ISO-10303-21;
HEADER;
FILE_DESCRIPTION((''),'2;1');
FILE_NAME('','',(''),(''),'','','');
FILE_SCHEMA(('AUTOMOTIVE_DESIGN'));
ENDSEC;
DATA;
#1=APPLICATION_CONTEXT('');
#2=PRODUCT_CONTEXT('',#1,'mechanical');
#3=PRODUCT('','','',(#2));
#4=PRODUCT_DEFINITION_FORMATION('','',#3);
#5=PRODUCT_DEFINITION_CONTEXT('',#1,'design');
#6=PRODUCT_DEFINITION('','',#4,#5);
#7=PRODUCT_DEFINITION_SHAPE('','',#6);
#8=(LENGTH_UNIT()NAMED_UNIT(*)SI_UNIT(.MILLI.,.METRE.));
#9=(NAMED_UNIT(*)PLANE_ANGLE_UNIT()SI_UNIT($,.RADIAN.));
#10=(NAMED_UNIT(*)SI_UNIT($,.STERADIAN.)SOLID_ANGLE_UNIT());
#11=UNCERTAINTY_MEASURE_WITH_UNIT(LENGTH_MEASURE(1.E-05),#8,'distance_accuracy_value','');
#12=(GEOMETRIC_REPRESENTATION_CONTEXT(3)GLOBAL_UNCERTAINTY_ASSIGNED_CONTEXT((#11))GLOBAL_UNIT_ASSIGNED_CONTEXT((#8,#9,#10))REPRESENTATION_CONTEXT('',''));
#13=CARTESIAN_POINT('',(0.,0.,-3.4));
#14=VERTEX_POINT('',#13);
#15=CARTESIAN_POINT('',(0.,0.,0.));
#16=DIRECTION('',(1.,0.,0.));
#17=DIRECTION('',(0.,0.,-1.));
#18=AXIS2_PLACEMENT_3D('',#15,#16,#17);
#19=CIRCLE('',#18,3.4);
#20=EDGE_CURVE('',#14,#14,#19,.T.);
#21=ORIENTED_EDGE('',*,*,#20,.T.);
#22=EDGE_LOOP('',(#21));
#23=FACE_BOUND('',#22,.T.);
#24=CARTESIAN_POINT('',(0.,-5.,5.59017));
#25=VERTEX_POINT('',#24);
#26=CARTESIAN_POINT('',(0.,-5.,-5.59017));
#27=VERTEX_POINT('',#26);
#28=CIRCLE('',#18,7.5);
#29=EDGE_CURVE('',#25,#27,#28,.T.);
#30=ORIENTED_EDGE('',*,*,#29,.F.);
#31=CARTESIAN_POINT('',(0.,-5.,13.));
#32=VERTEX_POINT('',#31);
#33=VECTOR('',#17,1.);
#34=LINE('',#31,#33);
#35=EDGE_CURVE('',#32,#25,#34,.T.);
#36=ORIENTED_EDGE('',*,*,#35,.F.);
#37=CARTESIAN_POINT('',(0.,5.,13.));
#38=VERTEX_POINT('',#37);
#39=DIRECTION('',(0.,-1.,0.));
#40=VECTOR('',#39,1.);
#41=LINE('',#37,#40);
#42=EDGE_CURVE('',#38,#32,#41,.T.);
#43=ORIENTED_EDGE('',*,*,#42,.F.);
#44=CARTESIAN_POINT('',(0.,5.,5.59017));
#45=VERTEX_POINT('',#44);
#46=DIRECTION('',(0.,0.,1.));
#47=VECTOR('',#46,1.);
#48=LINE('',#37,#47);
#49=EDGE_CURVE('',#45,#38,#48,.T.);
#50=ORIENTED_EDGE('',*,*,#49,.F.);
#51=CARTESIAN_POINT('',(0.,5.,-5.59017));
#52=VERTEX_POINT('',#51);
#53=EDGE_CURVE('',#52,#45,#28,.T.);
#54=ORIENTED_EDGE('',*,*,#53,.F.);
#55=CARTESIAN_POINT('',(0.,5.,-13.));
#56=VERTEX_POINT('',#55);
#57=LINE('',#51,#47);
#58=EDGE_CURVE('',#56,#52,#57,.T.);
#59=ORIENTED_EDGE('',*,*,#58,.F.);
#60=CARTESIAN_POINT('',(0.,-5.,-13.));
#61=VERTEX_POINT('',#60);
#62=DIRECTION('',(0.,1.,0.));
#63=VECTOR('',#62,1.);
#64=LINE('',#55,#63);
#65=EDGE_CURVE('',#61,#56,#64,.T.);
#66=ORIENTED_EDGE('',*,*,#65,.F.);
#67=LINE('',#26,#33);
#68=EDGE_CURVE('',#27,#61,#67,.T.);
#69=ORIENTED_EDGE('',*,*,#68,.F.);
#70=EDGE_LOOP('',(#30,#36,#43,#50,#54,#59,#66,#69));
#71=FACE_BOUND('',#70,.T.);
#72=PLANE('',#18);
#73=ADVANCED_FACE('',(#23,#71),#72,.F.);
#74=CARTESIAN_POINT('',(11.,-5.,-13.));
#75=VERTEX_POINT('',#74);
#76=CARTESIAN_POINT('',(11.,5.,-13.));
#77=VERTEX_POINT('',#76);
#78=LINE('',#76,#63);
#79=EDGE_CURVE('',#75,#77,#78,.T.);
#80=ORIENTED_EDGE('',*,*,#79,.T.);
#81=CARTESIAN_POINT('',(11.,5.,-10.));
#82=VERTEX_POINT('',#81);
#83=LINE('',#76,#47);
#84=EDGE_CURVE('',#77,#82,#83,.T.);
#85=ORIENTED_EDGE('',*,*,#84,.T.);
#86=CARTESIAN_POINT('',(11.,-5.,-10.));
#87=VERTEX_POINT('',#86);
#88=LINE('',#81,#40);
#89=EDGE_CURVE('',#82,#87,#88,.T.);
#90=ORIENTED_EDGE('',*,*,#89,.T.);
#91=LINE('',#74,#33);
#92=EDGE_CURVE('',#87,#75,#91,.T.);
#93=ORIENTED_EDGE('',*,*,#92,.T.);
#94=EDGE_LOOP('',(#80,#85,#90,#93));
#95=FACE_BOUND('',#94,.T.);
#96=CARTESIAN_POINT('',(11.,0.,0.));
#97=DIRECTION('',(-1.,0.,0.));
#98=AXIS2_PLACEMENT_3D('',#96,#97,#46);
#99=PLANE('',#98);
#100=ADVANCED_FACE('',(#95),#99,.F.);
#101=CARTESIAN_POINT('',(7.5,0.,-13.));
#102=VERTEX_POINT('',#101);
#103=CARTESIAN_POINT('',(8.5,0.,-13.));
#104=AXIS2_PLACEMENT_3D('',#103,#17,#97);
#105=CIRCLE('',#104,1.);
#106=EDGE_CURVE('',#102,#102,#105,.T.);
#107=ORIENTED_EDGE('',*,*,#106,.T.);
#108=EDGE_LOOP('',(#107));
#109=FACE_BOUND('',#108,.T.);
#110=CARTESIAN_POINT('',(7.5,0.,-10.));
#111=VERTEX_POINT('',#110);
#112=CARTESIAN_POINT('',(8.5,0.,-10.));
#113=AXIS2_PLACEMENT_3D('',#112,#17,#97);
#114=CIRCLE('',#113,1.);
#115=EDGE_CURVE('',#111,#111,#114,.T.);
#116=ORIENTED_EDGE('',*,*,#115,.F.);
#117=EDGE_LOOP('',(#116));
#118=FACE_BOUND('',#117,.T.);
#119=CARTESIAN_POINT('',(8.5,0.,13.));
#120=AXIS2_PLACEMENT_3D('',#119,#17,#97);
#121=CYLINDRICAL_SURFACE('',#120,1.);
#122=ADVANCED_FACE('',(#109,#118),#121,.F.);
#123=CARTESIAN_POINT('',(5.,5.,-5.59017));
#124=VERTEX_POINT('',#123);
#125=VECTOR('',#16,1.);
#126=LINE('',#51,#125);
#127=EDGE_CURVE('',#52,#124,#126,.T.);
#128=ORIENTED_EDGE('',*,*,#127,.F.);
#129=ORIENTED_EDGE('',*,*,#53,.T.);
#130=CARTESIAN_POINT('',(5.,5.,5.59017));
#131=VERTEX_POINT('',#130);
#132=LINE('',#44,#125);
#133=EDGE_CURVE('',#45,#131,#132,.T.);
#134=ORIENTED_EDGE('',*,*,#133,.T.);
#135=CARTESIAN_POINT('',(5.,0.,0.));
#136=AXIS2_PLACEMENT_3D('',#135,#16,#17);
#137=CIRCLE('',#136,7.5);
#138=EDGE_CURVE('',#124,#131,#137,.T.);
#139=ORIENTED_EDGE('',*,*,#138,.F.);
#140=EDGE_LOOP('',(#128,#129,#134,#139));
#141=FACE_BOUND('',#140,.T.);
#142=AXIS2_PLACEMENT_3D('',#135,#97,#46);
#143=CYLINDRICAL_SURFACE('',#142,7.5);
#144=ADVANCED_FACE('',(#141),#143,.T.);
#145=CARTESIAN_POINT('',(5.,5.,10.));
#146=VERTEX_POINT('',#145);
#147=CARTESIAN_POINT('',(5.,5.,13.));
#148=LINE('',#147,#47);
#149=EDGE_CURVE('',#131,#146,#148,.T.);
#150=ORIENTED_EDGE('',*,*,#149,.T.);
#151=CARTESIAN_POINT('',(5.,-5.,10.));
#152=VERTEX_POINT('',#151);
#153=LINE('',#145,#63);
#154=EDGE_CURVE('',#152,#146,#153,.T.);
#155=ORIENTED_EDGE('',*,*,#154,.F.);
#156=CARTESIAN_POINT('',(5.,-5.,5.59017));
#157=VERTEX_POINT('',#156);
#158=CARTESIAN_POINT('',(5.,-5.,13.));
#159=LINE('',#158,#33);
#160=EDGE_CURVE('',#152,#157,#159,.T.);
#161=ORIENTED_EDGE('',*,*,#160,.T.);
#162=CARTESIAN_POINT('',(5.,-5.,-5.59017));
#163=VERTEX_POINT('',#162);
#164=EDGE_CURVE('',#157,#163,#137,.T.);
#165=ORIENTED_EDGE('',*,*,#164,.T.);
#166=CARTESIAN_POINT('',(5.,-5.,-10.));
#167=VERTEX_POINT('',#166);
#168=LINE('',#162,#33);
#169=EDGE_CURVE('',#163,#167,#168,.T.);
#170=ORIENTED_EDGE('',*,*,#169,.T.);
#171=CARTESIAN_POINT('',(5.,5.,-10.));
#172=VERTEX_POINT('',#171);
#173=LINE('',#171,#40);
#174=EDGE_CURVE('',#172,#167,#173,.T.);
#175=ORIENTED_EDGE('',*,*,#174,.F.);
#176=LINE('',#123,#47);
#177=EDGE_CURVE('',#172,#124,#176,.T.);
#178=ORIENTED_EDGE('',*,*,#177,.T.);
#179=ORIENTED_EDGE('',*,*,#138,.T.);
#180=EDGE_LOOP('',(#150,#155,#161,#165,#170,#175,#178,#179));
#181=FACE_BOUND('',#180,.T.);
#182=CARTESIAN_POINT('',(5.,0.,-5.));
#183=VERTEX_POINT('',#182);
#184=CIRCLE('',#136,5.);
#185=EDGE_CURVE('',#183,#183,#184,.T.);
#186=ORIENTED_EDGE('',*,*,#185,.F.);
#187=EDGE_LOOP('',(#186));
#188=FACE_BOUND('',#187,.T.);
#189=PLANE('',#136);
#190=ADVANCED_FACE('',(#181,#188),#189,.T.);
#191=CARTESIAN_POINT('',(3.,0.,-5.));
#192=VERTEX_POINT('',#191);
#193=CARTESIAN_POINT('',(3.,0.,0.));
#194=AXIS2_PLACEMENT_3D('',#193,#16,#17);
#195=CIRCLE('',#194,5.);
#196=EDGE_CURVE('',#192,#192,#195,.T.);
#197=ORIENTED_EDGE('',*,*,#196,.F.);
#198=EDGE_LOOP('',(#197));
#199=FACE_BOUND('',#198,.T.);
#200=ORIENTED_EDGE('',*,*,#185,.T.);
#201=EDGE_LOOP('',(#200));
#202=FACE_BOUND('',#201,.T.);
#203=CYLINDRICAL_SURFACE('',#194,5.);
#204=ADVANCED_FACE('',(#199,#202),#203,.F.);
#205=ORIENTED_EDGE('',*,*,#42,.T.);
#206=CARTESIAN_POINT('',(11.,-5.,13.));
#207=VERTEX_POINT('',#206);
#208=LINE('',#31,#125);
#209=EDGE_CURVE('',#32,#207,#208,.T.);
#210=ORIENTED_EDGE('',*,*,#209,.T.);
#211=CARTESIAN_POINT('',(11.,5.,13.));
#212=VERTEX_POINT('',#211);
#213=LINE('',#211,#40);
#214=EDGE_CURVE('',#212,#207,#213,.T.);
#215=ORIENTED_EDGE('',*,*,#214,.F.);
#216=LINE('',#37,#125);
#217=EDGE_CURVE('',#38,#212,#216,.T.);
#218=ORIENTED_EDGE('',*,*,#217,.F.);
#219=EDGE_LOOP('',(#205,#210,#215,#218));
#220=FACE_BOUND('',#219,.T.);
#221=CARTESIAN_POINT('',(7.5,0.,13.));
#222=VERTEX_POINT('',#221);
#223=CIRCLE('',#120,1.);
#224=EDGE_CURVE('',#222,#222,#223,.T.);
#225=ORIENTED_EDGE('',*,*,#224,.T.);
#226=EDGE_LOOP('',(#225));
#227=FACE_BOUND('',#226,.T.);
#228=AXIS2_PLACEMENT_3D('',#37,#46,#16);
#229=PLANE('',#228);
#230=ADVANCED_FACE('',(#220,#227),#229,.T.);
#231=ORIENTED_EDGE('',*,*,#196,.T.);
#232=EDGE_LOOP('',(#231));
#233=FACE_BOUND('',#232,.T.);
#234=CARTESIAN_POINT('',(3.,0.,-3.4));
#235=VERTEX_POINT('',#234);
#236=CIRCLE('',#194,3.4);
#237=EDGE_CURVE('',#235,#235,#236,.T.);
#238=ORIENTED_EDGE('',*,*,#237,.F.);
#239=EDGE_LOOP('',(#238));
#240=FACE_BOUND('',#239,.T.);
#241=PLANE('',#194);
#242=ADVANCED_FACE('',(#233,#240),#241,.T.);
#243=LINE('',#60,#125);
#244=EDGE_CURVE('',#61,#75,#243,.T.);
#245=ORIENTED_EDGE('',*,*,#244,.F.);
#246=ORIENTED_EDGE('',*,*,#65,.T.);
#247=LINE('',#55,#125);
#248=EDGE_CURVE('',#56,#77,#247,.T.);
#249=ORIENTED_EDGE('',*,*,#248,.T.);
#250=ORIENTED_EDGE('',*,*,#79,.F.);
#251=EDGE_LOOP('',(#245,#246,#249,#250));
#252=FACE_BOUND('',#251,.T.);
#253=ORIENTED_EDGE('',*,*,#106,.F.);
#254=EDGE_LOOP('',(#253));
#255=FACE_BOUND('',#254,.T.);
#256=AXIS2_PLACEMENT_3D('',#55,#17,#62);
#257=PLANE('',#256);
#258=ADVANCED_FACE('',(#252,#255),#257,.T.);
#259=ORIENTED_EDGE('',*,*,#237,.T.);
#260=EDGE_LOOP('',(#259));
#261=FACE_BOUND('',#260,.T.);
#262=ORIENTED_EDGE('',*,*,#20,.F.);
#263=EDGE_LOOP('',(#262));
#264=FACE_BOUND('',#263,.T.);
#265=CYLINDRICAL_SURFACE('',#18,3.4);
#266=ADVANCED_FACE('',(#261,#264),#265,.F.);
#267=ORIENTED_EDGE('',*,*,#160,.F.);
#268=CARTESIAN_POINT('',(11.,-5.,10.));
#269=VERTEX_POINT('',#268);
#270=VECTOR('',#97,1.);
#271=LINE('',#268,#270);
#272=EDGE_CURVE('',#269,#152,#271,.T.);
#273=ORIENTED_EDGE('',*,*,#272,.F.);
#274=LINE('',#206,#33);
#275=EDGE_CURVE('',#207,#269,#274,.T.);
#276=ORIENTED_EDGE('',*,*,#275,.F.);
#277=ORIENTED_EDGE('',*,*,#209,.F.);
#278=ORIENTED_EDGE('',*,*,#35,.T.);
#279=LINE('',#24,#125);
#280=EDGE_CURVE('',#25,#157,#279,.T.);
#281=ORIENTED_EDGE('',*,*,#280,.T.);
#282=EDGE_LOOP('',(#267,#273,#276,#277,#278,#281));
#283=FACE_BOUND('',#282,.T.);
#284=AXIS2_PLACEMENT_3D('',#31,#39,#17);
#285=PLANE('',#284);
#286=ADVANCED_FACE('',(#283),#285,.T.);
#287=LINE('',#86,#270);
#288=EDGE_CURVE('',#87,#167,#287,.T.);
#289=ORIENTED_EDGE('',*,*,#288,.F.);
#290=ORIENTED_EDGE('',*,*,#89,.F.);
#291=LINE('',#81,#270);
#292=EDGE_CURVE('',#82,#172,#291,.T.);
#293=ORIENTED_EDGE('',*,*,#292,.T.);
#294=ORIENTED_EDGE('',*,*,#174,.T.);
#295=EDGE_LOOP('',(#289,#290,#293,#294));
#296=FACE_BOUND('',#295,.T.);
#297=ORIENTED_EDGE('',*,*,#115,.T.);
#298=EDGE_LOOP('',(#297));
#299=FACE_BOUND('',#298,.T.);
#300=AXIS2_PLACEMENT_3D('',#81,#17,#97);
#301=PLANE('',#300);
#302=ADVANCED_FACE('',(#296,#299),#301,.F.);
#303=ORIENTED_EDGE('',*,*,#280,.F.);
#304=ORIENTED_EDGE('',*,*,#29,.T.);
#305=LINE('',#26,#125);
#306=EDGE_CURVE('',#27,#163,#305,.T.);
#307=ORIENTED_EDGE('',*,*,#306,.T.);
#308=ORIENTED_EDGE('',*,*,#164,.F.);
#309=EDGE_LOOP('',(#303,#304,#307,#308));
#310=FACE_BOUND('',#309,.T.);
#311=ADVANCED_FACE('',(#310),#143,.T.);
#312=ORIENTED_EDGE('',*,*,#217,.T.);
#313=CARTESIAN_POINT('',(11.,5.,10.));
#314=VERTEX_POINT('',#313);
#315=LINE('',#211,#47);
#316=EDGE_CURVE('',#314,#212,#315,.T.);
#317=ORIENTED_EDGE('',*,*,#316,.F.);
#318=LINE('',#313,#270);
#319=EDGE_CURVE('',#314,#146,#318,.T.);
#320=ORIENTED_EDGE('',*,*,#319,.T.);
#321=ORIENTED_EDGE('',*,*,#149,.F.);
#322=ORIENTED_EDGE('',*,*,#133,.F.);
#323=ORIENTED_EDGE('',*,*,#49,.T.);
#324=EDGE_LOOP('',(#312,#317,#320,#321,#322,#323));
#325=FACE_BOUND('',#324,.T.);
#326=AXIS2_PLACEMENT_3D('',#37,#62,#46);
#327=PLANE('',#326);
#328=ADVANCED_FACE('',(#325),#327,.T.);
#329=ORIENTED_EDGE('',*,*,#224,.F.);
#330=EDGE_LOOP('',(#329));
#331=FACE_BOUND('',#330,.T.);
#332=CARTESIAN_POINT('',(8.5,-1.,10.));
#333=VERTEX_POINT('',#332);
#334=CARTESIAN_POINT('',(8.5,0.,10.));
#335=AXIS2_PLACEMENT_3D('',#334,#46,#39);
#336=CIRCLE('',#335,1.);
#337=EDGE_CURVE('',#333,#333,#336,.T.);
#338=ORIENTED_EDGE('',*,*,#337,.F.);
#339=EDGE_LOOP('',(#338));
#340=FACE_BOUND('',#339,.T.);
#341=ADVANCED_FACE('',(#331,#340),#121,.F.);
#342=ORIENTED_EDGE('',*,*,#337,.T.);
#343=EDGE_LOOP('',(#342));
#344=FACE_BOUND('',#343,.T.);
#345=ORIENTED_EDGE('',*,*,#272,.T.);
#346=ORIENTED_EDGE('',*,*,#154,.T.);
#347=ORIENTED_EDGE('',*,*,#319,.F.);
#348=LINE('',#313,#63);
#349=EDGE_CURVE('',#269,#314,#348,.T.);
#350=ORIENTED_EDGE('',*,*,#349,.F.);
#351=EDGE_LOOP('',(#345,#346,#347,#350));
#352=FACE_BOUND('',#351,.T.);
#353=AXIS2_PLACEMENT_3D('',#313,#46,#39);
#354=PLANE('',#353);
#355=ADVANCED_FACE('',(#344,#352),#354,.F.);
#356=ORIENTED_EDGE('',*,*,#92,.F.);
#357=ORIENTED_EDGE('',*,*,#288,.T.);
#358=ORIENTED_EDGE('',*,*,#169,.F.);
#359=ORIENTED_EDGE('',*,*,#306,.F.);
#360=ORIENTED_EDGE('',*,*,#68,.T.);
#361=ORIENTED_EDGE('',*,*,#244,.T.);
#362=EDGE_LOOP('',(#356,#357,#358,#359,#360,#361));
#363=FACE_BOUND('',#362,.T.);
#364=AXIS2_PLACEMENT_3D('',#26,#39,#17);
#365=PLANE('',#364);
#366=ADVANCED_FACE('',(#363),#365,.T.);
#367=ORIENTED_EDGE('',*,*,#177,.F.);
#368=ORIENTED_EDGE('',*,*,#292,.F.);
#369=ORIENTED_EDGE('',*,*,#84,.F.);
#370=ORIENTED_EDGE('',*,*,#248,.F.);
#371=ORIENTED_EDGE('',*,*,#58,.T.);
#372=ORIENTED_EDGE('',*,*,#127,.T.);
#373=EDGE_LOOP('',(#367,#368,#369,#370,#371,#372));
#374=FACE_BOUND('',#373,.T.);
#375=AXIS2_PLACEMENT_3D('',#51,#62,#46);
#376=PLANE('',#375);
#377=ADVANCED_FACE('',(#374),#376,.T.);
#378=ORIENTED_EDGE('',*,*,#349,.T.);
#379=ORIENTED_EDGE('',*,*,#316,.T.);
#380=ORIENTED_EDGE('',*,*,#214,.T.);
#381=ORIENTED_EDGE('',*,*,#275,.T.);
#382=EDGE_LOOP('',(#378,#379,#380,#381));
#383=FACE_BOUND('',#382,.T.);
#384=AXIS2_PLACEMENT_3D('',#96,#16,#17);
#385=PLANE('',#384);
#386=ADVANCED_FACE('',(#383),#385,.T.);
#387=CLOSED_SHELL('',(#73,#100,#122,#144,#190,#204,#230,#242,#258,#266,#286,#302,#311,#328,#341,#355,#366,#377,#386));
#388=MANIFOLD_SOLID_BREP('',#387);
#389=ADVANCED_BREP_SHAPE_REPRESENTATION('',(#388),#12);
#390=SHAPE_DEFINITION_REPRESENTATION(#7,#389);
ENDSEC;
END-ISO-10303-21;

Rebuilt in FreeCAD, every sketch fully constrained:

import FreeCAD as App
import Part
import Sketcher
from FreeCAD import Vector

doc = App.newDocument("Part")
body = doc.addObject("PartDesign::Body", "Body")

sketch1 = body.newObject("Sketcher::SketchObject", "Sketch")
sketch1.AttachmentSupport = (doc.getObject("YZ_Plane"), [""])
sketch1.MapMode = "FlatFace"
sketch1.addGeometry(Part.Circle(Vector(0, 0, 0), Vector(0, 0, 1), 8), False)
sketch1.addConstraint(Sketcher.Constraint("Coincident", 0, 3, -1, 1))
sketch1.addConstraint(Sketcher.Constraint("Diameter", 0, 15.0))
pad1 = body.newObject("PartDesign::Pad", "Pad")
pad1.Profile = sketch1
pad1.Length = 5

sketch2 = body.newObject("Sketcher::SketchObject", "Sketch001")
sketch2.AttachmentSupport = (doc.getObject("YZ_Plane"), [""])
sketch2.MapMode = "FlatFace"
sketch2.AttachmentOffset = App.Placement(Vector(0, 0, 5), App.Rotation())
sketch2.addGeometry(Part.Circle(Vector(0, 0, 0), Vector(0, 0, 1), 5), False)
sketch2.addConstraint(Sketcher.Constraint("Coincident", 0, 3, -1, 1))
sketch2.addConstraint(Sketcher.Constraint("Diameter", 0, 10.0))
pocket1 = body.newObject("PartDesign::Pocket", "Pocket")
pocket1.Profile = sketch2
pocket1.Length = 2

sketch3 = body.newObject("Sketcher::SketchObject", "Sketch002")
sketch3.AttachmentSupport = (doc.getObject("YZ_Plane"), [""])
sketch3.MapMode = "FlatFace"
sketch3.AttachmentOffset = App.Placement(Vector(0, 0, 3), App.Rotation())
sketch3.addGeometry(Part.Circle(Vector(0, 0, 0), Vector(0, 0, 1), 3.4), False)
sketch3.addConstraint(Sketcher.Constraint("Coincident", 0, 3, -1, 1))
sketch3.addConstraint(Sketcher.Constraint("Diameter", 0, 6.8))
pocket2 = body.newObject("PartDesign::Pocket", "Pocket001")
pocket2.Profile = sketch3
pocket2.Type = "ThroughAll"

sketch4 = body.newObject("Sketcher::SketchObject", "Sketch003")
sketch4.AttachmentSupport = (doc.getObject("YZ_Plane"), [""])
sketch4.MapMode = "FlatFace"
sketch4.AttachmentOffset = App.Placement(Vector(0, 0, 5), App.Rotation())
sketch4.addGeometry(Part.LineSegment(Vector(5, -6, 0), Vector(-5, -6, 0)), False)
sketch4.addGeometry(Part.LineSegment(Vector(-5, -6, 0), Vector(-5, -13, 0)), False)
sketch4.addGeometry(Part.LineSegment(Vector(-5, -13, 0), Vector(5, -13, 0)), False)
sketch4.addGeometry(Part.LineSegment(Vector(5, -13, 0), Vector(5, -6, 0)), False)
sketch4.addGeometry(Part.LineSegment(Vector(5, 13, 0), Vector(-5, 13, 0)), False)
sketch4.addGeometry(Part.LineSegment(Vector(-5, 13, 0), Vector(-5, 6, 0)), False)
sketch4.addGeometry(Part.LineSegment(Vector(-5, 6, 0), Vector(5, 6, 0)), False)
sketch4.addGeometry(Part.LineSegment(Vector(5, 6, 0), Vector(5, 13, 0)), False)
sketch4.addConstraint(Sketcher.Constraint("Coincident", 0, 2, 1, 1))
sketch4.addConstraint(Sketcher.Constraint("Coincident", 1, 2, 2, 1))
sketch4.addConstraint(Sketcher.Constraint("Coincident", 2, 2, 3, 1))
sketch4.addConstraint(Sketcher.Constraint("Coincident", 3, 2, 0, 1))
sketch4.addConstraint(Sketcher.Constraint("Coincident", 4, 2, 5, 1))
sketch4.addConstraint(Sketcher.Constraint("Coincident", 5, 2, 6, 1))
sketch4.addConstraint(Sketcher.Constraint("Coincident", 6, 2, 7, 1))
sketch4.addConstraint(Sketcher.Constraint("Coincident", 7, 2, 4, 1))
sketch4.addConstraint(Sketcher.Constraint("Horizontal", 0))
sketch4.addConstraint(Sketcher.Constraint("Vertical", 1))
sketch4.addConstraint(Sketcher.Constraint("Horizontal", 2))
sketch4.addConstraint(Sketcher.Constraint("Vertical", 3))
sketch4.addConstraint(Sketcher.Constraint("Horizontal", 4))
sketch4.addConstraint(Sketcher.Constraint("Vertical", 5))
sketch4.addConstraint(Sketcher.Constraint("Horizontal", 6))
sketch4.addConstraint(Sketcher.Constraint("Vertical", 7))
sketch4.addConstraint(Sketcher.Constraint("Symmetric", 2, 2, 4, 2, -1, 1))
sketch4.addConstraint(Sketcher.Constraint("Symmetric", 0, 2, 6, 2, -1, 1))
sketch4.addConstraint(Sketcher.Constraint("Vertical", 1, 2, 4, 2))
sketch4.addConstraint(Sketcher.Constraint("DistanceX", 0, 2, 0, 1, 10.0))
sketch4.addConstraint(Sketcher.Constraint("DistanceY", 1, 2, -1, 1, 13.0))
sketch4.addConstraint(Sketcher.Constraint("DistanceY", 1, 2, 1, 1, 7.40983))
pad2 = body.newObject("PartDesign::Pad", "Pad001")
pad2.Profile = sketch4
pad2.Length = 5
pad2.Reversed = True

sketch5 = body.newObject("Sketcher::SketchObject", "Sketch004")
sketch5.AttachmentSupport = (doc.getObject("YZ_Plane"), [""])
sketch5.MapMode = "FlatFace"
sketch5.AttachmentOffset = App.Placement(Vector(0, 0, 5), App.Rotation())
sketch5.addGeometry(Part.LineSegment(Vector(5, -10, 0), Vector(-5, -10, 0)), False)
sketch5.addGeometry(Part.LineSegment(Vector(-5, -10, 0), Vector(-5, -13, 0)), False)
sketch5.addGeometry(Part.LineSegment(Vector(-5, -13, 0), Vector(5, -13, 0)), False)
sketch5.addGeometry(Part.LineSegment(Vector(5, -13, 0), Vector(5, -10, 0)), False)
sketch5.addGeometry(Part.LineSegment(Vector(5, 13, 0), Vector(-5, 13, 0)), False)
sketch5.addGeometry(Part.LineSegment(Vector(-5, 13, 0), Vector(-5, 10, 0)), False)
sketch5.addGeometry(Part.LineSegment(Vector(-5, 10, 0), Vector(5, 10, 0)), False)
sketch5.addGeometry(Part.LineSegment(Vector(5, 10, 0), Vector(5, 13, 0)), False)
sketch5.addConstraint(Sketcher.Constraint("Coincident", 0, 2, 1, 1))
sketch5.addConstraint(Sketcher.Constraint("Coincident", 1, 2, 2, 1))
sketch5.addConstraint(Sketcher.Constraint("Coincident", 2, 2, 3, 1))
sketch5.addConstraint(Sketcher.Constraint("Coincident", 3, 2, 0, 1))
sketch5.addConstraint(Sketcher.Constraint("Coincident", 4, 2, 5, 1))
sketch5.addConstraint(Sketcher.Constraint("Coincident", 5, 2, 6, 1))
sketch5.addConstraint(Sketcher.Constraint("Coincident", 6, 2, 7, 1))
sketch5.addConstraint(Sketcher.Constraint("Coincident", 7, 2, 4, 1))
sketch5.addConstraint(Sketcher.Constraint("Horizontal", 0))
sketch5.addConstraint(Sketcher.Constraint("Vertical", 1))
sketch5.addConstraint(Sketcher.Constraint("Horizontal", 2))
sketch5.addConstraint(Sketcher.Constraint("Vertical", 3))
sketch5.addConstraint(Sketcher.Constraint("Horizontal", 4))
sketch5.addConstraint(Sketcher.Constraint("Vertical", 5))
sketch5.addConstraint(Sketcher.Constraint("Horizontal", 6))
sketch5.addConstraint(Sketcher.Constraint("Vertical", 7))
sketch5.addConstraint(Sketcher.Constraint("Symmetric", 2, 2, 4, 2, -1, 1))
sketch5.addConstraint(Sketcher.Constraint("Symmetric", 0, 2, 6, 2, -1, 1))
sketch5.addConstraint(Sketcher.Constraint("Vertical", 1, 2, 4, 2))
sketch5.addConstraint(Sketcher.Constraint("DistanceX", 0, 2, 0, 1, 10.0))
sketch5.addConstraint(Sketcher.Constraint("DistanceY", 1, 2, 1, 1, 3.0))
sketch5.addConstraint(Sketcher.Constraint("DistanceY", 0, 2, -1, 1, 10.0))
pad3 = body.newObject("PartDesign::Pad", "Pad002")
pad3.Profile = sketch5
pad3.Length = 6

sketch6 = body.newObject("Sketcher::SketchObject", "Sketch005")
sketch6.AttachmentSupport = (doc.getObject("XY_Plane"), [""])
sketch6.MapMode = "FlatFace"
sketch6.AttachmentOffset = App.Placement(Vector(0, 0, -13), App.Rotation())
sketch6.addGeometry(Part.Circle(Vector(8.5, 0, 0), Vector(0, 0, 1), 1), False)
sketch6.addConstraint(Sketcher.Constraint("PointOnObject", 0, 3, -1))
sketch6.addConstraint(Sketcher.Constraint("Diameter", 0, 2.0))
sketch6.addConstraint(Sketcher.Constraint("DistanceX", -1, 1, 0, 3, 8.5))
pocket3 = body.newObject("PartDesign::Pocket", "Pocket002")
pocket3.Profile = sketch6
pocket3.Type = "ThroughAll"
pocket3.Reversed = True

doc.recompute()
